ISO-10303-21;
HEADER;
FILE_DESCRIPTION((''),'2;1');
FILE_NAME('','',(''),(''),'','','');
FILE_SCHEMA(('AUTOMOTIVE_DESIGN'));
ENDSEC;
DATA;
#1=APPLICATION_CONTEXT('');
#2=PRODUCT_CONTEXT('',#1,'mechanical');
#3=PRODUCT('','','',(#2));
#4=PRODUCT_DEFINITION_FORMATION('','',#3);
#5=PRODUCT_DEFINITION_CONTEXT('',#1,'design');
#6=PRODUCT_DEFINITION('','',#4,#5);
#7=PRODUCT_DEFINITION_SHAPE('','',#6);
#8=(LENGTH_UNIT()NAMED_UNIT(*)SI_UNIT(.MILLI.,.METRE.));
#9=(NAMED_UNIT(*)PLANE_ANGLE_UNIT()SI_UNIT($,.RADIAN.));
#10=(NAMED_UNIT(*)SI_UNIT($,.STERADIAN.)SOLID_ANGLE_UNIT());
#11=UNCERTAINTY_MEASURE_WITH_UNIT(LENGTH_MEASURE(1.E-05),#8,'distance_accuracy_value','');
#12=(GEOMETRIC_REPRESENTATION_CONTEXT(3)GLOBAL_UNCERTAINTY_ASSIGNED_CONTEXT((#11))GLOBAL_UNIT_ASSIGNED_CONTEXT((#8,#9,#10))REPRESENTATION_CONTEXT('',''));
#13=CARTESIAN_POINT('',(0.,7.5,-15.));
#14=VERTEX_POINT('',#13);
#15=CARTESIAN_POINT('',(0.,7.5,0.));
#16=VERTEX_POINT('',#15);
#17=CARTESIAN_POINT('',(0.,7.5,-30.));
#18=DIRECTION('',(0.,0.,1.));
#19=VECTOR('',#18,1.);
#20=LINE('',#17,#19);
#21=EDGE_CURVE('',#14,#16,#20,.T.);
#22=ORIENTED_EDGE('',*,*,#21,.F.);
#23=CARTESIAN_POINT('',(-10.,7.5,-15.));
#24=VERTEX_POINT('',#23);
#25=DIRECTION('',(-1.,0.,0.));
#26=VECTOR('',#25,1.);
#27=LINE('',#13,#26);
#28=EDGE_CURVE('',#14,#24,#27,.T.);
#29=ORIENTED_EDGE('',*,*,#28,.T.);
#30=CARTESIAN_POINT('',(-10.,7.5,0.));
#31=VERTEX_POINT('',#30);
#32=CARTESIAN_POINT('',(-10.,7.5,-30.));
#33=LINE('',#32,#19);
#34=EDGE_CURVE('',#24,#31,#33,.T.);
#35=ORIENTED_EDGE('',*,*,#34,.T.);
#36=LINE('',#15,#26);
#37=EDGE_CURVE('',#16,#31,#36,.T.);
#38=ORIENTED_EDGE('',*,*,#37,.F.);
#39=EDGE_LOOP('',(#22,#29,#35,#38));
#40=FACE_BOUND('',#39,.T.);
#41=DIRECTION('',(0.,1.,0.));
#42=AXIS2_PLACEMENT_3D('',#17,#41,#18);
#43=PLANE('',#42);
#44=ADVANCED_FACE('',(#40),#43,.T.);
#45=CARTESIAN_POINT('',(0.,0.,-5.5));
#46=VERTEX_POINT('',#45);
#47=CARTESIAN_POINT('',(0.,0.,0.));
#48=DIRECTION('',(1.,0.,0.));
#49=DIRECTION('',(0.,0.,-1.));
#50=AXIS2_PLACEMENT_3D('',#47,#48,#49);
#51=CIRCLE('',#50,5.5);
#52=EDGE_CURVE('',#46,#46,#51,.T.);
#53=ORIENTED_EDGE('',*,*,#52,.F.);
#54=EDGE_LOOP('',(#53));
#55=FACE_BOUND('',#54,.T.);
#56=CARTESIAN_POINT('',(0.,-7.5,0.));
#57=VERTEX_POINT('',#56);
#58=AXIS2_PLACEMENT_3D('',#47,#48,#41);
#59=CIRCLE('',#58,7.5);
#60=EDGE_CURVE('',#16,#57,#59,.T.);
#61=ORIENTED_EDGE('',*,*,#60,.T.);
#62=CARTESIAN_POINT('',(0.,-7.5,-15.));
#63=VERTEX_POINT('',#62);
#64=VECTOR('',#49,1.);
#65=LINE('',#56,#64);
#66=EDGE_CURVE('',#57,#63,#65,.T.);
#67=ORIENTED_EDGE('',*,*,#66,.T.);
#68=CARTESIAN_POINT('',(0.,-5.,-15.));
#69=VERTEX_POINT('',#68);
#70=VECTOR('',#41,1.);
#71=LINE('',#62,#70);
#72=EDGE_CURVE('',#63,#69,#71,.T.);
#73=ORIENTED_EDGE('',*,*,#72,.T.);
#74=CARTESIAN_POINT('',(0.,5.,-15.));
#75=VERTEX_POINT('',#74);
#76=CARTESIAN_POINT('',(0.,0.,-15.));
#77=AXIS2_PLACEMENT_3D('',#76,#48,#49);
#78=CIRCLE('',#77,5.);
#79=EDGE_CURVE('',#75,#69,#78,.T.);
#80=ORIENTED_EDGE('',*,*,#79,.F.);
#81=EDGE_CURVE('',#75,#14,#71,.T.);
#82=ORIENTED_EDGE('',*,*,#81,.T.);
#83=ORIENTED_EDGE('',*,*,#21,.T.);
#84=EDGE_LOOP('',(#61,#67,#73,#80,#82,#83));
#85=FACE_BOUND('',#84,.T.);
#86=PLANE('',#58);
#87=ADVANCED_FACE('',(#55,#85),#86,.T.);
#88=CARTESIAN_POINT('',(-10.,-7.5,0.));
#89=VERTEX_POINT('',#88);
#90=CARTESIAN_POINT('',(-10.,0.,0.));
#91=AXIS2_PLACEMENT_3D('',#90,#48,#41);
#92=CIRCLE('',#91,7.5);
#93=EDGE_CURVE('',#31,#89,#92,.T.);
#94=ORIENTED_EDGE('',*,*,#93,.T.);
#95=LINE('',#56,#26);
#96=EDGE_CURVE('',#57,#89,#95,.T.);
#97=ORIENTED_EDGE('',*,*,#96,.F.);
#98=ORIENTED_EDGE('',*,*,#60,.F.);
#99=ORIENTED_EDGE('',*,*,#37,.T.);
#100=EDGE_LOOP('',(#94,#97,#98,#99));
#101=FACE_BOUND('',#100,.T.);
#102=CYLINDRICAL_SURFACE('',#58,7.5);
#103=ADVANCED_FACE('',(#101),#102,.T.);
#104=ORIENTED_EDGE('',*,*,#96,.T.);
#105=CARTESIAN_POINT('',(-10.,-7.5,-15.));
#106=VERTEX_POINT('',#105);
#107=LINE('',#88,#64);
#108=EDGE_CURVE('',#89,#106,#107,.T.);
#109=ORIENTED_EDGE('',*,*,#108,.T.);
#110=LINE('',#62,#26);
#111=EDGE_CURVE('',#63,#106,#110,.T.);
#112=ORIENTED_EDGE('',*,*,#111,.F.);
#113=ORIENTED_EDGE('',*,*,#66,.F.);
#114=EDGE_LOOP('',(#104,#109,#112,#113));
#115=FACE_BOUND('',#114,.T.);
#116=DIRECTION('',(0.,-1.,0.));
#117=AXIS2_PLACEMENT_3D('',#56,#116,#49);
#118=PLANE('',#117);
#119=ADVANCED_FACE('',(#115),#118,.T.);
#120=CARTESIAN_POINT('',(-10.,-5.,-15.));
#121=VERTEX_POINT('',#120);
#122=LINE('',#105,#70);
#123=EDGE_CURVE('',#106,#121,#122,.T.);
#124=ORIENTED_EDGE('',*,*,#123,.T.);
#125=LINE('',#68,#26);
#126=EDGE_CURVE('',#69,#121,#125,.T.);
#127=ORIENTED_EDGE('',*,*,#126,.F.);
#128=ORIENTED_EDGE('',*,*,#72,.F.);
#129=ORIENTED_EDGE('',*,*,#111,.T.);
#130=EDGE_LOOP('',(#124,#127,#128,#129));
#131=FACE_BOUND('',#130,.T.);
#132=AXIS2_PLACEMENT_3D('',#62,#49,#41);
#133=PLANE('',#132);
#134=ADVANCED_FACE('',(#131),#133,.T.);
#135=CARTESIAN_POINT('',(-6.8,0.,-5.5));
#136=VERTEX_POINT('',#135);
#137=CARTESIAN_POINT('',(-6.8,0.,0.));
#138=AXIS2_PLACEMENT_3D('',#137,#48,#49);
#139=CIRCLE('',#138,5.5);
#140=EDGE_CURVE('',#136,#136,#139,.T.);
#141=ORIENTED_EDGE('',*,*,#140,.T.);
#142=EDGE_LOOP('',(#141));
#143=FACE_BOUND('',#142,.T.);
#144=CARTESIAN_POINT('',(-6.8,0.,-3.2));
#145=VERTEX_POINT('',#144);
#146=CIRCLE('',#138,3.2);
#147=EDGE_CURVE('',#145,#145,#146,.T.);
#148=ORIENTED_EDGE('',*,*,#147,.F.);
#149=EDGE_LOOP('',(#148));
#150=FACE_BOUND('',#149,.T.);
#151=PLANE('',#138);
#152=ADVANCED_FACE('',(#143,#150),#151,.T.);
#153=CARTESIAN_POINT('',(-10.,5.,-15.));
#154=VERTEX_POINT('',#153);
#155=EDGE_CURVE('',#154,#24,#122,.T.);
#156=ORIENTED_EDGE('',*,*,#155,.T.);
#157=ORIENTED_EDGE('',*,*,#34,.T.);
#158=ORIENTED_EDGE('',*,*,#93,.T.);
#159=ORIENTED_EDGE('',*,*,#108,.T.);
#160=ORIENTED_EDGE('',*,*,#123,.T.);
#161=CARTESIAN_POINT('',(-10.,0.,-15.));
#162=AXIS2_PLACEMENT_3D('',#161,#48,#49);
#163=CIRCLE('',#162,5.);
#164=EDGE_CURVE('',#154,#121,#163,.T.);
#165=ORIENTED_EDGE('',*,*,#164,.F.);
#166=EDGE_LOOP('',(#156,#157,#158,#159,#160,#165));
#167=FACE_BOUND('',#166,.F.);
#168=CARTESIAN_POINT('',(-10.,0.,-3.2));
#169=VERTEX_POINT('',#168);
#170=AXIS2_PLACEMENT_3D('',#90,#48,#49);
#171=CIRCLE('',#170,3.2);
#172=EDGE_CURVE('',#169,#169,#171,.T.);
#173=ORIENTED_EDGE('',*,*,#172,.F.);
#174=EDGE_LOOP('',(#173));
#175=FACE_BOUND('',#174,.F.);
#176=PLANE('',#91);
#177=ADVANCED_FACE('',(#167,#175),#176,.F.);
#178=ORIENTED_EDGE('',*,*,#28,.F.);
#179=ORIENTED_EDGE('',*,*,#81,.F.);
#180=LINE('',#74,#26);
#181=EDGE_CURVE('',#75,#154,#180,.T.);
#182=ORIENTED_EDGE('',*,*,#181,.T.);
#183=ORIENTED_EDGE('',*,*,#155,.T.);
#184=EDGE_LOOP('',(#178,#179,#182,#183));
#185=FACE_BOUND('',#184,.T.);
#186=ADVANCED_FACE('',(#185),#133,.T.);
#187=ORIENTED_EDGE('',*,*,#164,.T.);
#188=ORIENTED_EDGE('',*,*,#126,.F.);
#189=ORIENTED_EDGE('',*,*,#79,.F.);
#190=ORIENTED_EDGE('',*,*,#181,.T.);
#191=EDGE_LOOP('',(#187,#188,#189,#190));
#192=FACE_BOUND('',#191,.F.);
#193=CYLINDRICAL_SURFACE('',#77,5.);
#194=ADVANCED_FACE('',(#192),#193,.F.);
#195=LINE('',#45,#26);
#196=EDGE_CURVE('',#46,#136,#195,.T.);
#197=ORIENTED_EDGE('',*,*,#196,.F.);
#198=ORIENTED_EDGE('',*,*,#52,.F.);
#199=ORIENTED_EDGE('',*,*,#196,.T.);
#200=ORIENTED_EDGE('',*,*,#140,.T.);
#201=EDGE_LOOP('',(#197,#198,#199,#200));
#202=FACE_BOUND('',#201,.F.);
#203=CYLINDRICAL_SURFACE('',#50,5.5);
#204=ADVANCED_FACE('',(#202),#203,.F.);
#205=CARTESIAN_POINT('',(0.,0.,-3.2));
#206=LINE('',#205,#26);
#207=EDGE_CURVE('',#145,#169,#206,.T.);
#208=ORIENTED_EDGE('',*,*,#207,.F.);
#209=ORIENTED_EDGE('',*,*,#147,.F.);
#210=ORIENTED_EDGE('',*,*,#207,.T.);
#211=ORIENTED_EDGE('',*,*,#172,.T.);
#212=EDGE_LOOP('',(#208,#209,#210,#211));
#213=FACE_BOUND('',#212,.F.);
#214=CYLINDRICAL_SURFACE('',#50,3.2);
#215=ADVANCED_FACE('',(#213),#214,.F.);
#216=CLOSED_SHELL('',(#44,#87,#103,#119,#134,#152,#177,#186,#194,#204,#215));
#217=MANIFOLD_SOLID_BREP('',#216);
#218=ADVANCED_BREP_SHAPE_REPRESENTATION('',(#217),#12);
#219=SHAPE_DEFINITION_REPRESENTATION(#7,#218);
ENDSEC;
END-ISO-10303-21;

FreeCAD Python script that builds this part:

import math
import FreeCAD as App
import Part
import Sketcher
Q = App.Units.Quantity

doc = App.newDocument("Part")
body = doc.addObject("PartDesign::Body", "Body")

# Sketch on YZ plane
sketch1 = doc.addObject("Sketcher::SketchObject", "Sketch")
body.addObject(sketch1)
sketch1.AttachmentSupport = (doc.YZ_Plane, [""])
sketch1.MapMode = "FlatFace"
sketch1.addGeometry([
    Part.ArcOfCircle(Part.Circle(App.Vector(0, 0, 0), App.Vector(0, 0, 1), 8), math.radians(0), math.radians(180)),
    Part.LineSegment(App.Vector(-8, 0, 0), App.Vector(-8, -30, 0)),
    Part.ArcOfCircle(Part.Circle(App.Vector(0, -30, 0), App.Vector(0, 0, 1), 8), math.radians(180), math.radians(360)),
    Part.LineSegment(App.Vector(8, -30, 0), App.Vector(8, 0, 0)),
], False)
sketch1.addConstraint([
    Sketcher.Constraint("Tangent", 0, 2, 1, 1),
    Sketcher.Constraint("Tangent", 1, 2, 2, 1),
    Sketcher.Constraint("Tangent", 2, 2, 3, 1),
    Sketcher.Constraint("Tangent", 3, 2, 0, 1),
    Sketcher.Constraint("Vertical", 1),
    Sketcher.Constraint("Vertical", 3),
    Sketcher.Constraint("Coincident", 0, 3, -1, 1),
    Sketcher.Constraint("Radius", 0, Q("7.5 mm")),
    Sketcher.Constraint("DistanceY", 1, 2, 1, 1, Q("30 mm")),
])
pad1 = doc.addObject("PartDesign::Pad", "Pad")
body.addObject(pad1)
pad1.Profile = sketch1
pad1.Length = 10
pad1.Reversed = True

# Sketch on YZ plane
sketch2 = doc.addObject("Sketcher::SketchObject", "Sketch001")
body.addObject(sketch2)
sketch2.AttachmentSupport = (doc.YZ_Plane, [""])
sketch2.MapMode = "FlatFace"
sketch2.addGeometry([
    Part.LineSegment(App.Vector(-8, -15, 0), App.Vector(-8, -30, 0)),
    Part.ArcOfCircle(Part.Circle(App.Vector(0, -30, 0), App.Vector(0, 0, 1), 8), math.radians(180), math.radians(360)),
    Part.LineSegment(App.Vector(8, -30, 0), App.Vector(8, -15, 0)),
    Part.LineSegment(App.Vector(8, -15, 0), App.Vector(-8, -15, 0)),
], False)
sketch2.addConstraint([
    Sketcher.Constraint("Tangent", 0, 2, 1, 1),
    Sketcher.Constraint("Tangent", 1, 2, 2, 1),
    Sketcher.Constraint("Coincident", 2, 2, 3, 1),
    Sketcher.Constraint("Coincident", 3, 2, 0, 1),
    Sketcher.Constraint("Vertical", 0),
    Sketcher.Constraint("Vertical", 2),
    Sketcher.Constraint("Horizontal", 3),
    Sketcher.Constraint("PointOnObject", 1, 3, -2),
    Sketcher.Constraint("Equal", 3, 0),
    Sketcher.Constraint("Radius", 1, Q("7.5 mm")),
    Sketcher.Constraint("DistanceY", 1, 3, -1, 1, Q("30 mm")),
])
pocket1 = doc.addObject("PartDesign::Pocket", "Pocket")
body.addObject(pocket1)
pocket1.Profile = sketch2
pocket1.Length = 10

# Sketch on YZ plane
sketch3 = doc.addObject("Sketcher::SketchObject", "Sketch002")
body.addObject(sketch3)
sketch3.AttachmentSupport = (doc.YZ_Plane, [""])
sketch3.MapMode = "FlatFace"
sketch3.addGeometry(Part.Circle(App.Vector(0, 0, 0), App.Vector(0, 0, 1), 3.2), False)
sketch3.addConstraint([
    Sketcher.Constraint("Coincident", 0, 3, -1, 1),
    Sketcher.Constraint("Diameter", 0, Q("6.4 mm")),
])
pocket2 = doc.addObject("PartDesign::Pocket", "Pocket001")
body.addObject(pocket2)
pocket2.Profile = sketch3
pocket2.Length = 10

# Sketch on YZ plane
sketch4 = doc.addObject("Sketcher::SketchObject", "Sketch003")
body.addObject(sketch4)
sketch4.AttachmentSupport = (doc.YZ_Plane, [""])
sketch4.MapMode = "FlatFace"
sketch4.addGeometry(Part.Circle(App.Vector(0, 0, 0), App.Vector(0, 0, 1), 6), False)
sketch4.addConstraint([
    Sketcher.Constraint("Coincident", 0, 3, -1, 1),
    Sketcher.Constraint("Diameter", 0, Q("11 mm")),
])
pocket3 = doc.addObject("PartDesign::Pocket", "Pocket002")
body.addObject(pocket3)
pocket3.Profile = sketch4
pocket3.Length = 6.8

# Sketch on YZ plane
sketch5 = doc.addObject("Sketcher::SketchObject", "Sketch004")
body.addObject(sketch5)
sketch5.AttachmentSupport = (doc.YZ_Plane, [""])
sketch5.MapMode = "FlatFace"
sketch5.addGeometry([
    Part.ArcOfCircle(Part.Circle(App.Vector(0, -15, 0), App.Vector(0, 0, 1), 5), math.radians(0), math.radians(180)),
    Part.LineSegment(App.Vector(-5, -15, 0), App.Vector(5, -15, 0)),
], False)
sketch5.addConstraint([
    Sketcher.Constraint("Coincident", 0, 1, 1, 2),
    Sketcher.Constraint("Coincident", 1, 1, 0, 2),
    Sketcher.Constraint("Horizontal", 1),
    Sketcher.Constraint("PointOnObject", 0, 3, -2),
    Sketcher.Constraint("Radius", 0, Q("5 mm")),
    Sketcher.Constraint("DistanceY", 0, 3, -1, 1, Q("15 mm")),
    Sketcher.Constraint("DistanceY", 0, 1, -1, 1, Q("15 mm")),
])
pocket4 = doc.addObject("PartDesign::Pocket", "Pocket003")
body.addObject(pocket4)
pocket4.Profile = sketch5
pocket4.Type = "ThroughAll"

doc.recompute()
